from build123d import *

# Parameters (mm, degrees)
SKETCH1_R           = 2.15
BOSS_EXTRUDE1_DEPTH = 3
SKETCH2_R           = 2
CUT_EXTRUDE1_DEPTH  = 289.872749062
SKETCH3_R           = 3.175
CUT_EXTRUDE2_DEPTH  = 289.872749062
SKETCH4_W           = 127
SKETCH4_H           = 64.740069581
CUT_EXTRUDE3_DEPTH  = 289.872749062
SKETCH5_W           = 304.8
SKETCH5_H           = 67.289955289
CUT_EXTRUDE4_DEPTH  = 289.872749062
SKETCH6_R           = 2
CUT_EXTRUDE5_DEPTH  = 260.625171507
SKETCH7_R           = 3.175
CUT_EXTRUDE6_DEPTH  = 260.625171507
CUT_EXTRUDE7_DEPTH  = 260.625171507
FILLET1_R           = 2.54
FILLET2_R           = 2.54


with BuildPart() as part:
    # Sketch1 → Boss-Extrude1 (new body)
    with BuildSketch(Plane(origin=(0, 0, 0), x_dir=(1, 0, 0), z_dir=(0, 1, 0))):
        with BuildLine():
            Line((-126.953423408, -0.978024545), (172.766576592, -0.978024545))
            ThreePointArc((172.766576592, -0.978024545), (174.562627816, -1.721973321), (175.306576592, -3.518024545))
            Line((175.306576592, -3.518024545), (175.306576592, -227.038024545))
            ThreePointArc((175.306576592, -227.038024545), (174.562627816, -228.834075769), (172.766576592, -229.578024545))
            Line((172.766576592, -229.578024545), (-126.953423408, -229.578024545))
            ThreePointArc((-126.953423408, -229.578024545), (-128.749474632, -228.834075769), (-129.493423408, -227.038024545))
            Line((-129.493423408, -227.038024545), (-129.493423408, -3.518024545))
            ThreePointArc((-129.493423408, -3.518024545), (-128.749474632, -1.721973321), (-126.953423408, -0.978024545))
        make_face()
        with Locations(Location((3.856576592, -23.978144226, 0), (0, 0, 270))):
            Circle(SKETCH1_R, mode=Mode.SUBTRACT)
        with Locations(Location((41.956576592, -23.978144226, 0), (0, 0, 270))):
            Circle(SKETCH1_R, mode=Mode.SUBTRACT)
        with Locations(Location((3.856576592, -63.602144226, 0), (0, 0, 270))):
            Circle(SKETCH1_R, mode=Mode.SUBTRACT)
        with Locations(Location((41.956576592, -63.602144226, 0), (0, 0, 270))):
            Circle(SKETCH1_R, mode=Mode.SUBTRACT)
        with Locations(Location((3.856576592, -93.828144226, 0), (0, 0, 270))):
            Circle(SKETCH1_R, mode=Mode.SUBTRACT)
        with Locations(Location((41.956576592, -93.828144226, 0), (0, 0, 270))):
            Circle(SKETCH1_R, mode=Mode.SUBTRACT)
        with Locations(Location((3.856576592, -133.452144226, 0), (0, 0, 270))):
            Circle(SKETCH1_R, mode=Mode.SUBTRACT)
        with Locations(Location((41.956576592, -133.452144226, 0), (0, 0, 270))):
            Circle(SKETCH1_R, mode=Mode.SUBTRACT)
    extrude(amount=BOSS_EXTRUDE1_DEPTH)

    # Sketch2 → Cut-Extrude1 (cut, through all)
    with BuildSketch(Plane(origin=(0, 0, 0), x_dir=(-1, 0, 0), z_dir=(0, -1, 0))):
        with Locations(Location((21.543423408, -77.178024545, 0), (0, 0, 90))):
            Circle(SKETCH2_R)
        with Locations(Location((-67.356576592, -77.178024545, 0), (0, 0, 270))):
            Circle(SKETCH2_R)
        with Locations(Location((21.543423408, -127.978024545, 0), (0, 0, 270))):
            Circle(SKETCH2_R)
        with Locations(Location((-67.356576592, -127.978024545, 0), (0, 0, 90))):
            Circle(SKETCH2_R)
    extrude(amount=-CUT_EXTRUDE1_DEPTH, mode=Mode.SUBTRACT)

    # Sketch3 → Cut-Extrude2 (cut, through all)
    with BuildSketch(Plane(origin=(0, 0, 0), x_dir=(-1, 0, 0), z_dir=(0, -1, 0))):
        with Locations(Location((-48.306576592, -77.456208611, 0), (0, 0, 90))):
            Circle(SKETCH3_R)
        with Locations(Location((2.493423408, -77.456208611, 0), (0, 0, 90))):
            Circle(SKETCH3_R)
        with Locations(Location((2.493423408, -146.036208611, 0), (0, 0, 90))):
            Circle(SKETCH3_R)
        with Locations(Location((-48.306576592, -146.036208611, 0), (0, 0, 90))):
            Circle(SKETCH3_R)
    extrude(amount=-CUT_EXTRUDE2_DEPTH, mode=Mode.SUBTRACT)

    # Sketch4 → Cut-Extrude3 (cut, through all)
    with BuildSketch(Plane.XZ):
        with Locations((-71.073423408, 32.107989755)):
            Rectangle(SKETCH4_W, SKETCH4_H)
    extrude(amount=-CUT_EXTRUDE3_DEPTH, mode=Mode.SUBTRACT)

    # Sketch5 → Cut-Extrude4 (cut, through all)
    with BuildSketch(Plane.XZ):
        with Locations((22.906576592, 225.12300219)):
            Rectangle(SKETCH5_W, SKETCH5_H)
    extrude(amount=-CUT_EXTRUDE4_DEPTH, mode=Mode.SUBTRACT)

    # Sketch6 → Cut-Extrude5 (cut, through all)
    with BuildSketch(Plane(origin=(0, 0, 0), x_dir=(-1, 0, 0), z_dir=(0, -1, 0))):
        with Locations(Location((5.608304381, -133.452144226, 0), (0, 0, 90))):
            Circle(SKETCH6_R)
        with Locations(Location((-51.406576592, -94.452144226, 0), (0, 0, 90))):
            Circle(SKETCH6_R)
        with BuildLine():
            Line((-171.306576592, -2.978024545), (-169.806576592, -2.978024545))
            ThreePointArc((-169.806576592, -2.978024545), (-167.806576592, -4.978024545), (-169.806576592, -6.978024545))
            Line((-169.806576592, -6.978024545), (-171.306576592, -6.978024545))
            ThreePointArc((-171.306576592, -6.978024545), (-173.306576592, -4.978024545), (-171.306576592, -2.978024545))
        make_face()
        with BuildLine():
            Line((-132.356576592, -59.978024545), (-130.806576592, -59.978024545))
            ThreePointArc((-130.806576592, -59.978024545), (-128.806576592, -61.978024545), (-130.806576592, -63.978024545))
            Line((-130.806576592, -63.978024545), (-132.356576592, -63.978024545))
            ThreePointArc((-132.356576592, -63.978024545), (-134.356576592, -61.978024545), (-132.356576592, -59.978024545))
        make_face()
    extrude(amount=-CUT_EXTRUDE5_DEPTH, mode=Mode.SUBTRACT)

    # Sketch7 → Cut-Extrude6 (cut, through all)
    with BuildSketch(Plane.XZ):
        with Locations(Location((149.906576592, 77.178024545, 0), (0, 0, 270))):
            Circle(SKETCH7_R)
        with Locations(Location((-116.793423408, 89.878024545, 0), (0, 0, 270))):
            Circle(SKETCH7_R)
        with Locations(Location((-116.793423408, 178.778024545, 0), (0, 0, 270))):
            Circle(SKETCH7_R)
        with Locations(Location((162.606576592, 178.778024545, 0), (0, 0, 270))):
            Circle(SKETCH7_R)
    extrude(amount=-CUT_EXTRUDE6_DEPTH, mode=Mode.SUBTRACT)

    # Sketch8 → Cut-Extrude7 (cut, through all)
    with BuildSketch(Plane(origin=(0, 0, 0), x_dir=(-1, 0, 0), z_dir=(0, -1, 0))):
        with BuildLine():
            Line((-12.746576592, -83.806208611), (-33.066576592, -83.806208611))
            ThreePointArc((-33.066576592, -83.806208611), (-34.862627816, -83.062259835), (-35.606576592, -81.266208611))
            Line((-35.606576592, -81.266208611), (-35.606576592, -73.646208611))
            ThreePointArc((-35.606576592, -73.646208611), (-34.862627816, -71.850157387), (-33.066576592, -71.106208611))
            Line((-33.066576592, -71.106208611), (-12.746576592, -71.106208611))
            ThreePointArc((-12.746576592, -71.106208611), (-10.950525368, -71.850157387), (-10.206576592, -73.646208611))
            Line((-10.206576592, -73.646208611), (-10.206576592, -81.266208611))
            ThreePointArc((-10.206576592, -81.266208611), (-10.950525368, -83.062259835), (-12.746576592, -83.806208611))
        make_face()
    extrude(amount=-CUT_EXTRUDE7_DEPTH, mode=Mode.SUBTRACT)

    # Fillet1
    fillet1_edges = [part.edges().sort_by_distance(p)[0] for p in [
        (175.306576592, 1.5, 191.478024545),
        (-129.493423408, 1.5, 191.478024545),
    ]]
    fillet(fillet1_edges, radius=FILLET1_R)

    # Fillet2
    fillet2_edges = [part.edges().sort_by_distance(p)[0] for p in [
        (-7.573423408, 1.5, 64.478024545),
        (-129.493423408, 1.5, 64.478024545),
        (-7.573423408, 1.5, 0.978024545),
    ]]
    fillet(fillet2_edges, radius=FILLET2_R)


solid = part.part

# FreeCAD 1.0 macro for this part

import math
import FreeCAD as App
import Part
import Sketcher
from FreeCAD import Vector
Q = App.Units.Quantity


def edges_at(feature, points):
    """Names of the edges that pass closest to the given points."""
    edges = feature.Shape.Edges
    near = lambda p: min(range(len(edges)), key=lambda i: edges[i].distToShape(Part.Vertex(*p))[0])
    return sorted({f"Edge{near(p) + 1}" for p in points})


def add_polygon(sketch, points):
    """Adds a closed chain of lines whose ends are joined by coincident constraints."""
    first, n = sketch.GeometryCount, len(points)
    for a, b in zip(points, points[1:] + points[:1]):
        sketch.addGeometry(Part.LineSegment(App.Vector(*a, 0), App.Vector(*b, 0)), False)
    for i in range(n):
        sketch.addConstraint(Sketcher.Constraint("Coincident", first + i, 2, first + (i + 1) % n, 1))

doc = App.newDocument("Part")
body = doc.addObject("PartDesign::Body", "Body")

sketch1 = doc.addObject("Sketcher::SketchObject", "Sketch")
body.addObject(sketch1)
sketch1.AttachmentSupport = (doc.XZ_Plane, [""])
sketch1.MapMode = "FlatFace"
sketch1.addGeometry([
    Part.LineSegment(Vector(172.8, 1, 0), Vector(-127, 1, 0)),
    Part.ArcOfCircle(Part.Circle(Vector(-127, 3.5, 0), Vector(0, 0, 1), 2.5), math.radians(-180), math.radians(-90)),
    Part.LineSegment(Vector(-129.5, 3.5, 0), Vector(-129.5, 227, 0)),
    Part.ArcOfCircle(Part.Circle(Vector(-127, 227, 0), Vector(0, 0, 1), 2.5), math.radians(90), math.radians(180)),
    Part.LineSegment(Vector(-127, 229.6, 0), Vector(172.8, 229.6, 0)),
    Part.ArcOfCircle(Part.Circle(Vector(172.8, 227, 0), Vector(0, 0, 1), 2.5), math.radians(0), math.radians(90)),
    Part.LineSegment(Vector(175.3, 227, 0), Vector(175.3, 3.5, 0)),
    Part.ArcOfCircle(Part.Circle(Vector(172.8, 3.5, 0), Vector(0, 0, 1), 2.5), math.radians(-90), math.radians(0)),
    Part.Circle(Vector(42, 133.5, 0), Vector(0, 0, 1), 2.1),
    Part.Circle(Vector(42, 93.8, 0), Vector(0, 0, 1), 2.1),
    Part.Circle(Vector(3.9, 133.5, 0), Vector(0, 0, 1), 2.1),
    Part.Circle(Vector(3.9, 93.8, 0), Vector(0, 0, 1), 2.1),
    Part.Circle(Vector(42, 63.6, 0), Vector(0, 0, 1), 2.1),
    Part.Circle(Vector(42, 24, 0), Vector(0, 0, 1), 2.1),
    Part.Circle(Vector(3.9, 63.6, 0), Vector(0, 0, 1), 2.1),
    Part.Circle(Vector(3.9, 24, 0), Vector(0, 0, 1), 2.1),
], False)
sketch1.addConstraint([
    Sketcher.Constraint("Tangent", 0, 2, 1, 2),
    Sketcher.Constraint("Tangent", 1, 1, 2, 1),
    Sketcher.Constraint("Tangent", 2, 2, 3, 2),
    Sketcher.Constraint("Tangent", 3, 1, 4, 1),
    Sketcher.Constraint("Tangent", 4, 2, 5, 2),
    Sketcher.Constraint("Tangent", 5, 1, 6, 1),
    Sketcher.Constraint("Tangent", 6, 2, 7, 2),
    Sketcher.Constraint("Tangent", 7, 1, 0, 1),
    Sketcher.Constraint("Horizontal", 0),
    Sketcher.Constraint("Vertical", 2),
    Sketcher.Constraint("Horizontal", 4),
    Sketcher.Constraint("Vertical", 6),
    Sketcher.Constraint("Equal", 1, 3),
    Sketcher.Constraint("Equal", 3, 5),
    Sketcher.Constraint("Equal", 5, 7),
    Sketcher.Constraint("Equal", 8, 9),
    Sketcher.Constraint("Equal", 9, 10),
    Sketcher.Constraint("Equal", 10, 11),
    Sketcher.Constraint("Equal", 11, 12),
    Sketcher.Constraint("Equal", 12, 13),
    Sketcher.Constraint("Equal", 13, 14),
    Sketcher.Constraint("Equal", 14, 15),
    Sketcher.Constraint("Horizontal", 8, 3, 10, 3),
    Sketcher.Constraint("Horizontal", 9, 3, 11, 3),
    Sketcher.Constraint("Horizontal", 12, 3, 14, 3),
    Sketcher.Constraint("Horizontal", 13, 3, 15, 3),
    Sketcher.Constraint("Vertical", 8, 3, 9, 3),
    Sketcher.Constraint("Vertical", 10, 3, 11, 3),
    Sketcher.Constraint("Vertical", 9, 3, 12, 3),
    Sketcher.Constraint("Vertical", 12, 3, 13, 3),
    Sketcher.Constraint("Vertical", 11, 3, 14, 3),
    Sketcher.Constraint("Vertical", 14, 3, 15, 3),
    Sketcher.Constraint("Radius", 1, Q("0.1 in")),
    Sketcher.Constraint("DistanceX", 0, 2, 0, 1, Q("11.8 in")),
    Sketcher.Constraint("DistanceY", 2, 1, 2, 2, Q("8.8 in")),
    Sketcher.Constraint("DistanceX", 10, 3, 8, 3, Q("1.5 in")),
    Sketcher.Constraint("Diameter", 8, 4.3),
    Sketcher.Constraint("DistanceX", 8, 3, 5, 3, Q("5.15 in")),
    Sketcher.Constraint("DistanceY", 9, 3, 8, 3, Q("1.56 in")),
    Sketcher.Constraint("DistanceY", 12, 3, 9, 3, Q("1.19 in")),
    Sketcher.Constraint("DistanceY", 13, 3, 12, 3, Q("1.56 in")),
    Sketcher.Constraint("DistanceY", 8, 3, 5, 3, 93.58588),
    Sketcher.Constraint("DistanceX", 1, 3, -1, 1, 126.953423),
    Sketcher.Constraint("DistanceY", -1, 1, 1, 3, 3.518025),
])
pad1 = doc.addObject("PartDesign::Pad", "Pad")
body.addObject(pad1)
pad1.Profile = sketch1
pad1.Length = 3
pad1.Reversed = True

sketch2 = doc.addObject("Sketcher::SketchObject", "Sketch001")
body.addObject(sketch2)
sketch2.AttachmentSupport = (doc.XZ_Plane, [""])
sketch2.MapMode = "FlatFace"
sketch2.addGeometry([
    Part.Circle(Vector(-21.5, 77.2, 0), Vector(0, 0, 1), 2),
    Part.Circle(Vector(67.4, 77.2, 0), Vector(0, 0, 1), 2),
    Part.Circle(Vector(-21.5, 128, 0), Vector(0, 0, 1), 2),
    Part.Circle(Vector(67.4, 128, 0), Vector(0, 0, 1), 2),
], False)
sketch2.addConstraint([
    Sketcher.Constraint("Equal", 0, 1),
    Sketcher.Constraint("Equal", 1, 2),
    Sketcher.Constraint("Equal", 2, 3),
    Sketcher.Constraint("Horizontal", 0, 3, 1, 3),
    Sketcher.Constraint("Horizontal", 2, 3, 3, 3),
    Sketcher.Constraint("Vertical", 0, 3, 2, 3),
    Sketcher.Constraint("Vertical", 1, 3, 3, 3),
    Sketcher.Constraint("DistanceY", 0, 3, 2, 3, Q("2 in")),
    Sketcher.Constraint("DistanceX", 0, 3, 1, 3, Q("3.5 in")),
    Sketcher.Constraint("Diameter", 0, 4.0),
    Sketcher.Constraint("DistanceX", 0, 3, -1, 1, 21.543423),
    Sketcher.Constraint("DistanceY", -1, 1, 0, 3, 77.178025),
])
pocket1 = doc.addObject("PartDesign::Pocket", "Pocket")
body.addObject(pocket1)
pocket1.Profile = sketch2
pocket1.Type = "ThroughAll"

sketch3 = doc.addObject("Sketcher::SketchObject", "Sketch002")
body.addObject(sketch3)
sketch3.AttachmentSupport = (doc.XZ_Plane, [""])
sketch3.MapMode = "FlatFace"
sketch3.addGeometry([
    Part.Circle(Vector(48.3, 77.5, 0), Vector(0, 0, 1), 3.2),
    Part.Circle(Vector(-2.5, 77.5, 0), Vector(0, 0, 1), 3.2),
    Part.Circle(Vector(-2.5, 146, 0), Vector(0, 0, 1), 3.2),
    Part.Circle(Vector(48.3, 146, 0), Vector(0, 0, 1), 3.2),
], False)
sketch3.addConstraint([
    Sketcher.Constraint("Equal", 0, 1),
    Sketcher.Constraint("Equal", 1, 2),
    Sketcher.Constraint("Equal", 2, 3),
    Sketcher.Constraint("Horizontal", 0, 3, 1, 3),
    Sketcher.Constraint("Horizontal", 2, 3, 3, 3),
    Sketcher.Constraint("Vertical", 1, 3, 2, 3),
    Sketcher.Constraint("Vertical", 0, 3, 3, 3),
    Sketcher.Constraint("Diameter", 0, Q("0.25 in")),
    Sketcher.Constraint("DistanceX", 1, 3, 0, 3, Q("2 in")),
    Sketcher.Constraint("DistanceY", 1, 3, 2, 3, Q("2.7 in")),
    Sketcher.Constraint("DistanceY", -1, 1, 0, 3, 77.456209),
    Sketcher.Constraint("DistanceX", -1, 1, 0, 3, 48.306577),
])
pocket2 = doc.addObject("PartDesign::Pocket", "Pocket001")
body.addObject(pocket2)
pocket2.Profile = sketch3
pocket2.Type = "ThroughAll"

sketch4 = doc.addObject("Sketcher::SketchObject", "Sketch003")
body.addObject(sketch4)
sketch4.AttachmentSupport = (doc.XZ_Plane, [""])
sketch4.MapMode = "FlatFace"
add_polygon(sketch4, [(-135, 64), (-135, 0), (-8, 0), (-8, 64)])
sketch4.addConstraint([
    Sketcher.Constraint("Vertical", 0),
    Sketcher.Constraint("Horizontal", 1),
    Sketcher.Constraint("Vertical", 2),
    Sketcher.Constraint("Horizontal", 3),
    Sketcher.Constraint("DistanceX", 1, 1, 1, 2, Q("5 in")),
    Sketcher.Constraint("DistanceY", 0, 2, 0, 1, 64.74007),
    Sketcher.Constraint("DistanceX", 0, 2, -1, 1, 134.573423),
    Sketcher.Constraint("DistanceY", 0, 2, -1, 1, 0.262045),
])
pocket3 = doc.addObject("PartDesign::Pocket", "Pocket002")
body.addObject(pocket3)
pocket3.Profile = sketch4
pocket3.Type = "ThroughAll"

sketch5 = doc.addObject("Sketcher::SketchObject", "Sketch004")
body.addObject(sketch5)
sketch5.AttachmentSupport = (doc.XZ_Plane, [""])
sketch5.MapMode = "FlatFace"
add_polygon(sketch5, [(-129, 259), (-129, 191), (175, 191), (175, 259)])
sketch5.addConstraint([
    Sketcher.Constraint("Vertical", 0),
    Sketcher.Constraint("Horizontal", 1),
    Sketcher.Constraint("Vertical", 2),
    Sketcher.Constraint("Horizontal", 3),
    Sketcher.Constraint("DistanceX", 1, 1, 1, 2, Q("12 in")),
    Sketcher.Constraint("DistanceY", 0, 2, 0, 1, 67.289955),
    Sketcher.Constraint("DistanceY", -1, 1, 2, 2, 258.76798),
    Sketcher.Constraint("DistanceX", 0, 2, -1, 1, 129.493423),
])
pocket4 = doc.addObject("PartDesign::Pocket", "Pocket003")
body.addObject(pocket4)
pocket4.Profile = sketch5
pocket4.Type = "ThroughAll"

sketch6 = doc.addObject("Sketcher::SketchObject", "Sketch005")
body.addObject(sketch6)
sketch6.AttachmentSupport = (doc.XZ_Plane, [""])
sketch6.MapMode = "FlatFace"
sketch6.addGeometry([
    Part.Circle(Vector(-5.6, 133.5, 0), Vector(0, 0, 1), 2),
    Part.Circle(Vector(51.4, 94.5, 0), Vector(0, 0, 1), 2),
    Part.LineSegment(Vector(169.8, 3, 0), Vector(171.3, 3, 0)),
    Part.ArcOfCircle(Part.Circle(Vector(171.3, 5, 0), Vector(0, 0, 1), 2), math.radians(-90), math.radians(90)),
    Part.LineSegment(Vector(171.3, 7, 0), Vector(169.8, 7, 0)),
    Part.ArcOfCircle(Part.Circle(Vector(169.8, 5, 0), Vector(0, 0, 1), 2), math.radians(90), math.radians(270)),
    Part.LineSegment(Vector(130.8, 60, 0), Vector(132.4, 60, 0)),
    Part.ArcOfCircle(Part.Circle(Vector(132.4, 62, 0), Vector(0, 0, 1), 2), math.radians(-90), math.radians(90)),
    Part.LineSegment(Vector(132.4, 64, 0), Vector(130.8, 64, 0)),
    Part.ArcOfCircle(Part.Circle(Vector(130.8, 62, 0), Vector(0, 0, 1), 2), math.radians(90), math.radians(270)),
], False)
sketch6.addConstraint([
    Sketcher.Constraint("Tangent", 2, 2, 3, 1),
    Sketcher.Constraint("Tangent", 3, 2, 4, 1),
    Sketcher.Constraint("Tangent", 4, 2, 5, 1),
    Sketcher.Constraint("Tangent", 5, 2, 2, 1),
    Sketcher.Constraint("Tangent", 6, 2, 7, 1),
    Sketcher.Constraint("Tangent", 7, 2, 8, 1),
    Sketcher.Constraint("Tangent", 8, 2, 9, 1),
    Sketcher.Constraint("Tangent", 9, 2, 6, 1),
    Sketcher.Constraint("Horizontal", 2),
    Sketcher.Constraint("Horizontal", 4),
    Sketcher.Constraint("Horizontal", 6),
    Sketcher.Constraint("Horizontal", 8),
    Sketcher.Constraint("Equal", 0, 1),
    Sketcher.Constraint("Equal", 1, 3),
    Sketcher.Constraint("Equal", 5, 7),
    Sketcher.Constraint("Diameter", 0, 4.0),
    Sketcher.Constraint("DistanceX", 2, 1, 2, 2, 1.5),
    Sketcher.Constraint("DistanceX", 6, 1, 6, 2, 1.55),
    Sketcher.Constraint("DistanceY", 1, 3, 0, 3, 39.0),
    Sketcher.Constraint("DistanceX", 1, 3, 3, 3, 119.9),
    Sketcher.Constraint("DistanceX", 7, 3, 5, 3, 37.45),
    Sketcher.Constraint("DistanceY", 5, 3, 7, 3, 57.0),
    Sketcher.Constraint("DistanceX", 0, 3, 1, 3, 57.014881),
    Sketcher.Constraint("DistanceY", 3, 3, 1, 3, 89.47412),
    Sketcher.Constraint("DistanceX", 0, 3, -1, 1, 5.608304),
    Sketcher.Constraint("DistanceY", -1, 1, 0, 3, 133.452144),
])
pocket5 = doc.addObject("PartDesign::Pocket", "Pocket004")
body.addObject(pocket5)
pocket5.Profile = sketch6
pocket5.Type = "ThroughAll"

sketch7 = doc.addObject("Sketcher::SketchObject", "Sketch006")
body.addObject(sketch7)
sketch7.AttachmentSupport = (doc.XZ_Plane, [""])
sketch7.MapMode = "FlatFace"
sketch7.addGeometry([
    Part.Circle(Vector(149.9, 77.2, 0), Vector(0, 0, 1), 3.2),
    Part.Circle(Vector(-116.8, 89.9, 0), Vector(0, 0, 1), 3.2),
    Part.Circle(Vector(-116.8, 178.8, 0), Vector(0, 0, 1), 3.2),
    Part.Circle(Vector(162.6, 178.8, 0), Vector(0, 0, 1), 3.2),
], False)
sketch7.addConstraint([
    Sketcher.Constraint("Equal", 0, 1),
    Sketcher.Constraint("Equal", 1, 2),
    Sketcher.Constraint("Equal", 2, 3),
    Sketcher.Constraint("Horizontal", 2, 3, 3, 3),
    Sketcher.Constraint("Vertical", 1, 3, 2, 3),
    Sketcher.Constraint("Diameter", 0, Q("0.25 in")),
    Sketcher.Constraint("DistanceY", 0, 3, 2, 3, Q("4 in")),
    Sketcher.Constraint("DistanceX", 2, 3, 3, 3, Q("11 in")),
    Sketcher.Constraint("DistanceX", 1, 3, 0, 3, Q("10.5 in")),
    Sketcher.Constraint("DistanceY", 0, 3, 1, 3, Q("0.5 in")),
    Sketcher.Constraint("DistanceX", -1, 1, 0, 3, 149.906577),
    Sketcher.Constraint("DistanceY", -1, 1, 0, 3, 77.178025),
])
pocket6 = doc.addObject("PartDesign::Pocket", "Pocket005")
body.addObject(pocket6)
pocket6.Profile = sketch7
pocket6.Type = "ThroughAll"

sketch8 = doc.addObject("Sketcher::SketchObject", "Sketch007")
body.addObject(sketch8)
sketch8.AttachmentSupport = (doc.XZ_Plane, [""])
sketch8.MapMode = "FlatFace"
sketch8.addGeometry([
    Part.LineSegment(Vector(33.1, 83.8, 0), Vector(12.7, 83.8, 0)),
    Part.ArcOfCircle(Part.Circle(Vector(12.7, 81.3, 0), Vector(0, 0, 1), 2.5), math.radians(90), math.radians(180)),
    Part.LineSegment(Vector(10.2, 81.3, 0), Vector(10.2, 73.6, 0)),
    Part.ArcOfCircle(Part.Circle(Vector(12.7, 73.6, 0), Vector(0, 0, 1), 2.5), math.radians(-180), math.radians(-90)),
    Part.LineSegment(Vector(12.7, 71.1, 0), Vector(33.1, 71.1, 0)),
    Part.ArcOfCircle(Part.Circle(Vector(33.1, 73.6, 0), Vector(0, 0, 1), 2.5), math.radians(-90), math.radians(0)),
    Part.LineSegment(Vector(35.6, 73.6, 0), Vector(35.6, 81.3, 0)),
    Part.ArcOfCircle(Part.Circle(Vector(33.1, 81.3, 0), Vector(0, 0, 1), 2.5), math.radians(0), math.radians(90)),
], False)
sketch8.addConstraint([
    Sketcher.Constraint("Tangent", 0, 2, 1, 1),
    Sketcher.Constraint("Tangent", 1, 2, 2, 1),
    Sketcher.Constraint("Tangent", 2, 2, 3, 1),
    Sketcher.Constraint("Tangent", 3, 2, 4, 1),
    Sketcher.Constraint("Tangent", 4, 2, 5, 1),
    Sketcher.Constraint("Tangent", 5, 2, 6, 1),
    Sketcher.Constraint("Tangent", 6, 2, 7, 1),
    Sketcher.Constraint("Tangent", 7, 2, 0, 1),
    Sketcher.Constraint("Horizontal", 0),
    Sketcher.Constraint("Vertical", 2),
    Sketcher.Constraint("Horizontal", 4),
    Sketcher.Constraint("Vertical", 6),
    Sketcher.Constraint("Equal", 1, 3),
    Sketcher.Constraint("Equal", 3, 5),
    Sketcher.Constraint("Equal", 5, 7),
    Sketcher.Constraint("Radius", 1, Q("0.1 in")),
    Sketcher.Constraint("DistanceX", 0, 2, 0, 1, Q("0.8 in")),
    Sketcher.Constraint("DistanceY", 2, 2, 2, 1, Q("0.3 in")),
    Sketcher.Constraint("DistanceY", -1, 1, 1, 3, 81.266209),
    Sketcher.Constraint("DistanceX", -1, 1, 1, 3, 12.746577),
])
pocket7 = doc.addObject("PartDesign::Pocket", "Pocket006")
body.addObject(pocket7)
pocket7.Profile = sketch8
pocket7.Type = "ThroughAll"
doc.recompute()

fillet = doc.addObject("PartDesign::Fillet", "Fillet")
body.addObject(fillet)
fillet.Base = (pocket7, edges_at(pocket7, [(175.307, 1.5, 191.478), (-129.493, 1.5, 191.478)]))
fillet.Radius = Q("0.1 in")
doc.recompute()

fillet2 = doc.addObject("PartDesign::Fillet", "Fillet001")
body.addObject(fillet2)
fillet2.Base = (fillet, edges_at(fillet, [(-7.573, 1.5, 64.478), (-129.493, 1.5, 64.478), (-7.573, 1.5, 0.978)]))
fillet2.Radius = Q("0.1 in")

doc.recompute()
